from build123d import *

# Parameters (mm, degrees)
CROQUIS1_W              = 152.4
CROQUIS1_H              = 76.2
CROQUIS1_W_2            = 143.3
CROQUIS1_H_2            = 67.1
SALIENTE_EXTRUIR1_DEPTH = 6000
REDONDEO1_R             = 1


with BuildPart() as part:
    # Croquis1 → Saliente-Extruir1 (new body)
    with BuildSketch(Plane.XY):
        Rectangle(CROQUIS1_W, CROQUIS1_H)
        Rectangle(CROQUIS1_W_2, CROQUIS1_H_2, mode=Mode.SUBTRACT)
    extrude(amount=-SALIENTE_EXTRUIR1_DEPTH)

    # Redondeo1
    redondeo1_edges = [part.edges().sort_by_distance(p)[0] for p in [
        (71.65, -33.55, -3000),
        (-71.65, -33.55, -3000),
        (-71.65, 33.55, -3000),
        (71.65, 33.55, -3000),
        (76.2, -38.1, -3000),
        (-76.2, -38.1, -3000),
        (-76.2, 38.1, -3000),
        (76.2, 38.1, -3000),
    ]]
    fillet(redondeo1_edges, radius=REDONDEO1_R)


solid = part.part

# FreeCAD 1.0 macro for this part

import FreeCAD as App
import Part
import Sketcher


def edges_at(feature, points):
    """Names of the edges that pass closest to the given points."""
    edges = feature.Shape.Edges
    near = lambda p: min(range(len(edges)), key=lambda i: edges[i].distToShape(Part.Vertex(*p))[0])
    return sorted({f"Edge{near(p) + 1}" for p in points})

doc = App.newDocument("Part")
body = doc.addObject("PartDesign::Body", "Body")

sketch1 = doc.addObject("Sketcher::SketchObject", "Sketch")
body.addObject(sketch1)
sketch1.AttachmentSupport = (doc.XY_Plane, [""])
sketch1.MapMode = "FlatFace"
sketch1.addGeometry(Part.LineSegment(App.Vector(-76, 38, 0), App.Vector(-76, -38, 0)), False)
sketch1.addGeometry(Part.LineSegment(App.Vector(-76, -38, 0), App.Vector(76, -38, 0)), False)
sketch1.addGeometry(Part.LineSegment(App.Vector(76, -38, 0), App.Vector(76, 38, 0)), False)
sketch1.addGeometry(Part.LineSegment(App.Vector(76, 38, 0), App.Vector(-76, 38, 0)), False)
sketch1.addGeometry(Part.LineSegment(App.Vector(72, -34, 0), App.Vector(-72, -34, 0)), False)
sketch1.addGeometry(Part.LineSegment(App.Vector(-72, -34, 0), App.Vector(-72, 34, 0)), False)
sketch1.addGeometry(Part.LineSegment(App.Vector(-72, 34, 0), App.Vector(72, 34, 0)), False)
sketch1.addGeometry(Part.LineSegment(App.Vector(72, 34, 0), App.Vector(72, -34, 0)), False)
sketch1.addConstraint(Sketcher.Constraint("Coincident", 0, 2, 1, 1))
sketch1.addConstraint(Sketcher.Constraint("Coincident", 1, 2, 2, 1))
sketch1.addConstraint(Sketcher.Constraint("Coincident", 2, 2, 3, 1))
sketch1.addConstraint(Sketcher.Constraint("Coincident", 3, 2, 0, 1))
sketch1.addConstraint(Sketcher.Constraint("Coincident", 4, 2, 5, 1))
sketch1.addConstraint(Sketcher.Constraint("Coincident", 5, 2, 6, 1))
sketch1.addConstraint(Sketcher.Constraint("Coincident", 6, 2, 7, 1))
sketch1.addConstraint(Sketcher.Constraint("Coincident", 7, 2, 4, 1))
sketch1.addConstraint(Sketcher.Constraint("Vertical", 0))
sketch1.addConstraint(Sketcher.Constraint("Horizontal", 1))
sketch1.addConstraint(Sketcher.Constraint("Vertical", 2))
sketch1.addConstraint(Sketcher.Constraint("Horizontal", 3))
sketch1.addConstraint(Sketcher.Constraint("Horizontal", 4))
sketch1.addConstraint(Sketcher.Constraint("Vertical", 5))
sketch1.addConstraint(Sketcher.Constraint("Horizontal", 6))
sketch1.addConstraint(Sketcher.Constraint("Vertical", 7))
sketch1.addConstraint(Sketcher.Constraint("Symmetric", 0, 2, 2, 2, -1, 1))
sketch1.addConstraint(Sketcher.Constraint("Symmetric", 4, 2, 6, 2, -1, 1))
sketch1.addConstraint(Sketcher.Constraint("DistanceX", 1, 1, 1, 2, 152.4))
sketch1.addConstraint(Sketcher.Constraint("DistanceX", 4, 2, 4, 1, 143.3))
sketch1.addConstraint(Sketcher.Constraint("DistanceY", 0, 2, 0, 1, 76.2))
sketch1.addConstraint(Sketcher.Constraint("DistanceY", 5, 1, 5, 2, 67.1))
pad1 = doc.addObject("PartDesign::Pad", "Pad")
body.addObject(pad1)
pad1.Profile = sketch1
pad1.Length = 6000
pad1.Reversed = True
doc.recompute()

fillet = doc.addObject("PartDesign::Fillet", "Fillet")
body.addObject(fillet)
fillet.Base = (pad1, edges_at(pad1, [
    (71.65, -33.55, -3000),
    (-71.65, -33.55, -3000),
    (-71.65, 33.55, -3000),
    (71.65, 33.55, -3000),
    (76.2, -38.1, -3000),
    (-76.2, -38.1, -3000),
    (-76.2, 38.1, -3000),
    (76.2, 38.1, -3000),
]))
fillet.Radius = 1

doc.recompute()
